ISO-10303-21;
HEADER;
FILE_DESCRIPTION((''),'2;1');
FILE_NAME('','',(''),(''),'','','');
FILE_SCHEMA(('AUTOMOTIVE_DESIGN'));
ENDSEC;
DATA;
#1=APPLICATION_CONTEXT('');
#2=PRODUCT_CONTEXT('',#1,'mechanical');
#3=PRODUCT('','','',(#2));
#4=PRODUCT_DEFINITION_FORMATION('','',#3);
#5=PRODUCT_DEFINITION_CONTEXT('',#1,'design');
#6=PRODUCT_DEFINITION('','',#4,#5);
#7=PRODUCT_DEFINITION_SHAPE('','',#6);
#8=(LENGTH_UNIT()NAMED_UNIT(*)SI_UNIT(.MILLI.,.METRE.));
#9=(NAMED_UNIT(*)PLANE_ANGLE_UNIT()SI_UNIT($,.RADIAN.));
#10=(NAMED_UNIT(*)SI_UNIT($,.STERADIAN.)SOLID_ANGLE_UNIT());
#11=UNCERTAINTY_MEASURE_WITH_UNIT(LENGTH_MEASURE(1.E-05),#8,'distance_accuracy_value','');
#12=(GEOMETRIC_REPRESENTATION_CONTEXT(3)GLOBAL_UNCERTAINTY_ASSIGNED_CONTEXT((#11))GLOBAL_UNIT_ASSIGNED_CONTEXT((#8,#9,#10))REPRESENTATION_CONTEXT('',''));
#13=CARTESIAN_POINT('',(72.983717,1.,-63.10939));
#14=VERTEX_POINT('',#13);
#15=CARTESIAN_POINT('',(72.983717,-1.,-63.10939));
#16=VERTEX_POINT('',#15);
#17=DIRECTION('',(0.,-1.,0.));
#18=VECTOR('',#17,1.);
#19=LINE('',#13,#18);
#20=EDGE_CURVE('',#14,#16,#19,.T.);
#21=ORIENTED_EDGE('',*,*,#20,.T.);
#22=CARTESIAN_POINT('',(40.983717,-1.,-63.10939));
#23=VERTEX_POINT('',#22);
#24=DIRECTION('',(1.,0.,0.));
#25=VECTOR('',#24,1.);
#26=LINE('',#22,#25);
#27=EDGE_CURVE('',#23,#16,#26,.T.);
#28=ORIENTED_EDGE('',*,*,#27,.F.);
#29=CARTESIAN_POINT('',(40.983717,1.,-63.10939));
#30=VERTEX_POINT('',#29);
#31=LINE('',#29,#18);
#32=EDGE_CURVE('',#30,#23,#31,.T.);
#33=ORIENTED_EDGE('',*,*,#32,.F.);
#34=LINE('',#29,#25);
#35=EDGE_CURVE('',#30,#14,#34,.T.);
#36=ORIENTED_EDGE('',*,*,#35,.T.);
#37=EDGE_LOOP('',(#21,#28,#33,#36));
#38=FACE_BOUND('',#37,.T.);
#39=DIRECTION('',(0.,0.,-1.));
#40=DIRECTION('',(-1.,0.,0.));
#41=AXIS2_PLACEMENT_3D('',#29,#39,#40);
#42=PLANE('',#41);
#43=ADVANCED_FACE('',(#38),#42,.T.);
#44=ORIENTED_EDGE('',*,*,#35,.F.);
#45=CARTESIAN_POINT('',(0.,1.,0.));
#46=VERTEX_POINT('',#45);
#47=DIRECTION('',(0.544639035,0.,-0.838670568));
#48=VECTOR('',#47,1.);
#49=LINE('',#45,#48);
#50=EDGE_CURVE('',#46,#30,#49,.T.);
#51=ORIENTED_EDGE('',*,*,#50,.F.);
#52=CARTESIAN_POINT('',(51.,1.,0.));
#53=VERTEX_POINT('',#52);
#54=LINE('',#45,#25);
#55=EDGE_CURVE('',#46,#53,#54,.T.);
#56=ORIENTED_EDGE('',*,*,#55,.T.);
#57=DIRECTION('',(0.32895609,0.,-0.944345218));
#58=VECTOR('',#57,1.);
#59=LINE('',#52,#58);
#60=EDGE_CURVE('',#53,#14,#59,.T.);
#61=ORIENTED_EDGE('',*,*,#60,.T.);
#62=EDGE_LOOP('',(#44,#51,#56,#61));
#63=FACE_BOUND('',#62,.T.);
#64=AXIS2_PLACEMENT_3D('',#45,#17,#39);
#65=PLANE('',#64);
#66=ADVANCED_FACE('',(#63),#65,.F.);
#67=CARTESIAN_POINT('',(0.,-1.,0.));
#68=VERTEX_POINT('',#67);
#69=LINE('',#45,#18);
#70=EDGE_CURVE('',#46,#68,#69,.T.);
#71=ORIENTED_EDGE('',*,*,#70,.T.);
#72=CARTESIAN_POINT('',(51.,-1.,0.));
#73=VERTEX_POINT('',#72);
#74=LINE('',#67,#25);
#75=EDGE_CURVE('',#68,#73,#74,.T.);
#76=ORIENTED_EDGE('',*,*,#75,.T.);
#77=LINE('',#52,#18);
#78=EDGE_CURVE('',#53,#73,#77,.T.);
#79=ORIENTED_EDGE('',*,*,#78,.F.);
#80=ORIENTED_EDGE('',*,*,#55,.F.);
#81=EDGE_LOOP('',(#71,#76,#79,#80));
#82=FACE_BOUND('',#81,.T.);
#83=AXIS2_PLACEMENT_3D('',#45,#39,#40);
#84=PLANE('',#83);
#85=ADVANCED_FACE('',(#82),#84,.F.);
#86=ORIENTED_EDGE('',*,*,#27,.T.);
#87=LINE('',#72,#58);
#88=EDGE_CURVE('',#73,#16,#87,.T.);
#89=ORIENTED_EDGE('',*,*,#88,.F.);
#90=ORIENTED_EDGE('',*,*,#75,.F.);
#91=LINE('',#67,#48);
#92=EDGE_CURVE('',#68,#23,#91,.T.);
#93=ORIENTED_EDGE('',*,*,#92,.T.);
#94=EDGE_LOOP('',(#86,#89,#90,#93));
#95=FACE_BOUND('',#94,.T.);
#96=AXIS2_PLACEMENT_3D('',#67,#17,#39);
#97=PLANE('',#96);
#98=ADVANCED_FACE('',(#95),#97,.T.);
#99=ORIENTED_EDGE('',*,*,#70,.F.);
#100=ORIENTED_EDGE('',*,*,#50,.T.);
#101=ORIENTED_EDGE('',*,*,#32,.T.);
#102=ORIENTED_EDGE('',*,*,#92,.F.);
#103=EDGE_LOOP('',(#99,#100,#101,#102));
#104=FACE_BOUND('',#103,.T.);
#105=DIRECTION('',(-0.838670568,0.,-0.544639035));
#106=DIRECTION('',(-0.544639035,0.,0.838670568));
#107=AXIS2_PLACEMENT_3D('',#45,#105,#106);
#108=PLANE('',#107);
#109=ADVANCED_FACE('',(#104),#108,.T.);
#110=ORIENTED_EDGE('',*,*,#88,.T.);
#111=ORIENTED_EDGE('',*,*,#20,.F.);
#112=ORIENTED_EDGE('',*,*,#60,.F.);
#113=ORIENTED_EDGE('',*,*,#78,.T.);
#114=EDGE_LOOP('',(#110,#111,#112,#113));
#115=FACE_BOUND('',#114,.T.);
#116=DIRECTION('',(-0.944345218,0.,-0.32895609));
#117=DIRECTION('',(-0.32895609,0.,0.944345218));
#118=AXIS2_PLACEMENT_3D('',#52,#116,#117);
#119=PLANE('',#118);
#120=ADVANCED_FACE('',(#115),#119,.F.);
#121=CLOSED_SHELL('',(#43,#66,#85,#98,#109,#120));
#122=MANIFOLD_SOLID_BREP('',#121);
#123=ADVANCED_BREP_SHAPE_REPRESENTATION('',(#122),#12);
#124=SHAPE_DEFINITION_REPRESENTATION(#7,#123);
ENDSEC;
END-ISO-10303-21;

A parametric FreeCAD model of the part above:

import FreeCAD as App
import Part
import Sketcher

V = App.Vector
Q = App.Units.Quantity

doc = App.newDocument("Part")
body = doc.addObject("PartDesign::Body", "Body")

# Sketch on XZ plane
sketch1 = body.newObject("Sketcher::SketchObject", "Sketch")
sketch1.AttachmentSupport = (doc.getObject("XZ_Plane"), [""])
sketch1.MapMode = "FlatFace"
sketch1.addGeometry(Part.LineSegment(V(0, 0, 0), V(51, 0, 0)), False)
sketch1.addGeometry(Part.LineSegment(V(51, 0, 0), V(73, -63, 0)), False)
sketch1.addGeometry(Part.LineSegment(V(73, -63, 0), V(41, -63, 0)), False)
sketch1.addGeometry(Part.LineSegment(V(41, -63, 0), V(0, 0, 0)), False)
sketch1.addConstraint(Sketcher.Constraint("Coincident", 0, 2, 1, 1))
sketch1.addConstraint(Sketcher.Constraint("Coincident", 1, 2, 2, 1))
sketch1.addConstraint(Sketcher.Constraint("Coincident", 2, 2, 3, 1))
sketch1.addConstraint(Sketcher.Constraint("Coincident", 3, 2, 0, 1))
sketch1.addConstraint(Sketcher.Constraint("Horizontal", 0))
sketch1.addConstraint(Sketcher.Constraint("Horizontal", 2))
sketch1.addConstraint(Sketcher.Constraint("Coincident", 3, 2, -1, 1))
sketch1.addConstraint(Sketcher.Constraint("DistanceX", 0, 1, 0, 2, Q("51 mm")))
sketch1.addConstraint(Sketcher.Constraint("DistanceX", 2, 2, 2, 1, Q("32 mm")))
sketch1.addConstraint(Sketcher.Constraint("Angle", 3, Q("123 deg")))
sketch1.addConstraint(Sketcher.Constraint("Distance", 1, Q("66.828729 mm")))
pad1 = body.newObject("PartDesign::Pad", "Pad")
pad1.Profile = sketch1
pad1.Length = 2
pad1.Midplane = True

doc.recompute()
